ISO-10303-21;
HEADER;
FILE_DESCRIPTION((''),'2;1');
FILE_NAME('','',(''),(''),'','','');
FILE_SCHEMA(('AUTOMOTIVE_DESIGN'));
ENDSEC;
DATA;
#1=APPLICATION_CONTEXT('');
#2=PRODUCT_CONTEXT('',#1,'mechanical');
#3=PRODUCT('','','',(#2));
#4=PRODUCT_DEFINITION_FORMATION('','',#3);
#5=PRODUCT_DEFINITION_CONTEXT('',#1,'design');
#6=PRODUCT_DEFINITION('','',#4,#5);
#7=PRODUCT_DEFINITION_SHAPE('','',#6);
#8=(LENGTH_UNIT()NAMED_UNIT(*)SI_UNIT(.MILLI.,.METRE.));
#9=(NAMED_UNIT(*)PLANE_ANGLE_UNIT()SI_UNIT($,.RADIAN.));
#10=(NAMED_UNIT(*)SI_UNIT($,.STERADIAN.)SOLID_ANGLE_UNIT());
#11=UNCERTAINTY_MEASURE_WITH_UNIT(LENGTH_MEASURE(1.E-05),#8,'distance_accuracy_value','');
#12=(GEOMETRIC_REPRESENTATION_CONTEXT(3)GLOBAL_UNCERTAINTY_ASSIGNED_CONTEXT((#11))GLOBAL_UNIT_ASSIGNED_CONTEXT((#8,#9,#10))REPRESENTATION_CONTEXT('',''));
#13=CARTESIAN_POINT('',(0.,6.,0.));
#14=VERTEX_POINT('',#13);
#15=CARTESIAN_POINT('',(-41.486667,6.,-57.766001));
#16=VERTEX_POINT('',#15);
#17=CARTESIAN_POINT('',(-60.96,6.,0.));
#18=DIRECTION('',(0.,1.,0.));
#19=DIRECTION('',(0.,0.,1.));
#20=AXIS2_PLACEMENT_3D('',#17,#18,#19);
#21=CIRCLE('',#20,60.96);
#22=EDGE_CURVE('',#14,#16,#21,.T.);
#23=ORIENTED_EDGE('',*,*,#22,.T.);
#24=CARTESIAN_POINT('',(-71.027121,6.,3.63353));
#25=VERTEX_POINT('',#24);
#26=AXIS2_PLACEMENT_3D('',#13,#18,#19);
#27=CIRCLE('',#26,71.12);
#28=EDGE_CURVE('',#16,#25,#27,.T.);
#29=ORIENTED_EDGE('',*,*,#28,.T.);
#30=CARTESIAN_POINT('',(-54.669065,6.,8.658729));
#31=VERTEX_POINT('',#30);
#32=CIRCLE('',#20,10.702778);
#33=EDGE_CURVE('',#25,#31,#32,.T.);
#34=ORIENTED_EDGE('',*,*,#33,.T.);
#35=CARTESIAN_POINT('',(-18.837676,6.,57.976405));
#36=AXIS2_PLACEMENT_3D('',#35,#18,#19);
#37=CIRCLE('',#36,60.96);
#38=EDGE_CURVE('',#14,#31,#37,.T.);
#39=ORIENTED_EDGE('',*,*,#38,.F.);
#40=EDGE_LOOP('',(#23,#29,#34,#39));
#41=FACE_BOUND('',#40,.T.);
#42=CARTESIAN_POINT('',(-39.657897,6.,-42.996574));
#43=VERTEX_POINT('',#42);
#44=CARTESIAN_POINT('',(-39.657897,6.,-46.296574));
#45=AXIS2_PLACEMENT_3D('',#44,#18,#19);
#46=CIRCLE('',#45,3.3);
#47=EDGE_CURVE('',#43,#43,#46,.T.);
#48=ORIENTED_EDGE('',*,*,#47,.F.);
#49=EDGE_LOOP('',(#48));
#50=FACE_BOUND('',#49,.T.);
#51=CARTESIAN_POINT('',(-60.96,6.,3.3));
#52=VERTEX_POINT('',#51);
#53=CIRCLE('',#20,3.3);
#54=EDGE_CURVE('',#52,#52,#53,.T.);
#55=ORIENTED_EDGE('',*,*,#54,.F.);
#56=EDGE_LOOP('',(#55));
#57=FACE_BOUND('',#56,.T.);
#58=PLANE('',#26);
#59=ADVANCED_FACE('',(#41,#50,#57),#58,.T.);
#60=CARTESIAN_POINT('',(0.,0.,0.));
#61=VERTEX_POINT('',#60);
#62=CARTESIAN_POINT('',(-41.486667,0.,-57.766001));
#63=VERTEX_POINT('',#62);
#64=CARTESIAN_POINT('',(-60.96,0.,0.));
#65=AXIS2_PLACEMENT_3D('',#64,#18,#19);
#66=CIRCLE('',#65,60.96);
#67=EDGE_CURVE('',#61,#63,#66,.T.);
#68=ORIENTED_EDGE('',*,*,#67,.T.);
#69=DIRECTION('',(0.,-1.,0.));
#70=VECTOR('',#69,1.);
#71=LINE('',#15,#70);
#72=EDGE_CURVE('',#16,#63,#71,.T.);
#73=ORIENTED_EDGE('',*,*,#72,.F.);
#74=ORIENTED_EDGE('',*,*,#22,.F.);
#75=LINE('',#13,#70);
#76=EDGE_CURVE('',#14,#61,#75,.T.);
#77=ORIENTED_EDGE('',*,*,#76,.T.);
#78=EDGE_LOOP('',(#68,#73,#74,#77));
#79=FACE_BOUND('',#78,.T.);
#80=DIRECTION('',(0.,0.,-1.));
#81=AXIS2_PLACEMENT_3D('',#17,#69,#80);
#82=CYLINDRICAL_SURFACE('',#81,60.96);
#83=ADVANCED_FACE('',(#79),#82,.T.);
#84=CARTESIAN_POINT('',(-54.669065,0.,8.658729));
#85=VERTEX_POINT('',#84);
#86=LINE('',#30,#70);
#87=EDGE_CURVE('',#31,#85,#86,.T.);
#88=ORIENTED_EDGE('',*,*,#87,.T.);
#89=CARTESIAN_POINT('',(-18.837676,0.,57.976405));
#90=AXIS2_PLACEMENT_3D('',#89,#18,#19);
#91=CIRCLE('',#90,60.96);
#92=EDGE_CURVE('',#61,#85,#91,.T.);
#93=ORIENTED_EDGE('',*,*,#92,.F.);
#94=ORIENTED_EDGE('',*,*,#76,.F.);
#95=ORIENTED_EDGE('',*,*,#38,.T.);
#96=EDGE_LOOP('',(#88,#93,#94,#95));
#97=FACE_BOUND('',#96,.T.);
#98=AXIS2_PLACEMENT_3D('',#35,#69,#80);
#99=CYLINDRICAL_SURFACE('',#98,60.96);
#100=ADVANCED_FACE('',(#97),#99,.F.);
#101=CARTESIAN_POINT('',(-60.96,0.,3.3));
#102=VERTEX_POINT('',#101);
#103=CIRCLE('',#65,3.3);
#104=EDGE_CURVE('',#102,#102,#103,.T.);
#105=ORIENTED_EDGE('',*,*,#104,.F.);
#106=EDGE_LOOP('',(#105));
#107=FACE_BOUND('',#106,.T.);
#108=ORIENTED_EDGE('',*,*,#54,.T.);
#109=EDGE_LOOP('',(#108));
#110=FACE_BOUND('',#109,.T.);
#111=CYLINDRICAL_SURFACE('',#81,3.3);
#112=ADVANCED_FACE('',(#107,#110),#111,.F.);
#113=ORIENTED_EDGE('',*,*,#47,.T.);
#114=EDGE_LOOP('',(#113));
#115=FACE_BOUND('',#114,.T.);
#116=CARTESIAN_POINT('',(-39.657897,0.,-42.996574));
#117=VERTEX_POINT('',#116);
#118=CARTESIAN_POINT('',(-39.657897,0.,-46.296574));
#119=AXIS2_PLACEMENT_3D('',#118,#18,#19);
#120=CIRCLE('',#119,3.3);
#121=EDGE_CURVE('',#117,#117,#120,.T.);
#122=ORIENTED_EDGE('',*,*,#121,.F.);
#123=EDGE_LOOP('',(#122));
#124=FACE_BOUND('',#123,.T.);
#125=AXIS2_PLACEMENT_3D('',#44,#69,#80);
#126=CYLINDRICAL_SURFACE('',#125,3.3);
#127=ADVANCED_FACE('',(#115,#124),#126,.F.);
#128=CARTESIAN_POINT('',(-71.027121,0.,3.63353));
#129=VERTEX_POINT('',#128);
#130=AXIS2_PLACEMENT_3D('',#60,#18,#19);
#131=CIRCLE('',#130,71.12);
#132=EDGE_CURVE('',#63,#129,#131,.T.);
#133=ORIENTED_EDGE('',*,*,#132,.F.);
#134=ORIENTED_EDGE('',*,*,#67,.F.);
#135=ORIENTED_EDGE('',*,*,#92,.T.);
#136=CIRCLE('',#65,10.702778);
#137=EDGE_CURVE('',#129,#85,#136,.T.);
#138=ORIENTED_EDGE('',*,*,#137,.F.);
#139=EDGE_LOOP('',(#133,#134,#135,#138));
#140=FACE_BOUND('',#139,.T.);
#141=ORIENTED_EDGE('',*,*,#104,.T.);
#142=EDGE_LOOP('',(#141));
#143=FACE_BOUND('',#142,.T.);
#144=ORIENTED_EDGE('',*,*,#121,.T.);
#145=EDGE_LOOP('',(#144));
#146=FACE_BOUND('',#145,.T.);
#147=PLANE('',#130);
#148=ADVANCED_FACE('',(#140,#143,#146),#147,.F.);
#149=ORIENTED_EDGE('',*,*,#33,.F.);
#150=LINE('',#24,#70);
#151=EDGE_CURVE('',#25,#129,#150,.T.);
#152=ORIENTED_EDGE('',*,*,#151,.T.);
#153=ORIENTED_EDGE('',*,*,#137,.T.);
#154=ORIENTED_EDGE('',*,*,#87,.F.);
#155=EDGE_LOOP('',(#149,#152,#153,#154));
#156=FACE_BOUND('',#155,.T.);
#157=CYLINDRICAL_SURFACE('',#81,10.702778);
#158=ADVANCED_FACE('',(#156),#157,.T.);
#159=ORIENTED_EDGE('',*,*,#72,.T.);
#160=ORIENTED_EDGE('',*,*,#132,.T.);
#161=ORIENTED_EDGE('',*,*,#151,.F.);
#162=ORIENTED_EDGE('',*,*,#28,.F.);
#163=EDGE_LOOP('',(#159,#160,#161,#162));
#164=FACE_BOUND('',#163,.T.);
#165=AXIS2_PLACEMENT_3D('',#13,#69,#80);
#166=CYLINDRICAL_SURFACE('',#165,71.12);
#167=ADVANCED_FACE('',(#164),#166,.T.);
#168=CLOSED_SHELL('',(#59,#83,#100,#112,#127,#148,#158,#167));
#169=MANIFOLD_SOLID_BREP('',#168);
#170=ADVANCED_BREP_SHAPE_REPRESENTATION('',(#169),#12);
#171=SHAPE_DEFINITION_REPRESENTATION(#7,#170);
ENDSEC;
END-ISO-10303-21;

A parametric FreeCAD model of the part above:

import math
import FreeCAD as App
import Part
import Sketcher

V = App.Vector

doc = App.newDocument("Part")
body = doc.addObject("PartDesign::Body", "Body")

# Sketch on XZ plane
sketch1 = body.newObject("Sketcher::SketchObject", "Sketch")
sketch1.AttachmentSupport = (doc.getObject("XZ_Plane"), [""])
sketch1.MapMode = "FlatFace"
sketch1.addGeometry(Part.ArcOfCircle(Part.Circle(V(-60.96, 0, 0), V(0, 0, 1), 60.96), math.radians(-71.370669), math.radians(0)), False)
sketch1.addGeometry(Part.ArcOfCircle(Part.Circle(V(0, 0, 0), V(0, 0, 1), 71.12), math.radians(177.071476), math.radians(234.314665)), False)
sketch1.addGeometry(Part.ArcOfCircle(Part.Circle(V(-60.96, 0, 0), V(0, 0, 1), 10.702778), math.radians(54), math.radians(160.153946)), False)
sketch1.addGeometry(Part.ArcOfCircle(Part.Circle(V(-18.837676, 57.976405, 0), V(0, 0, 1), 60.96), math.radians(-126), math.radians(-72)), False)
sketch1.addGeometry(Part.Circle(V(-60.96, 0, 0), V(0, 0, 1), 3.3), False)
sketch1.addGeometry(Part.Circle(V(-39.657897, -46.296574, 0), V(0, 0, 1), 3.3), False)
sketch1.addConstraint(Sketcher.Constraint("Coincident", 0, 1, 1, 2))
sketch1.addConstraint(Sketcher.Constraint("Coincident", 1, 1, 2, 2))
sketch1.addConstraint(Sketcher.Constraint("Tangent", 2, 1, 3, 1))
sketch1.addConstraint(Sketcher.Constraint("Coincident", 3, 2, 0, 2))
sketch1.addConstraint(Sketcher.Constraint("Coincident", 1, 3, -1, 1))
sketch1.addConstraint(Sketcher.Constraint("Coincident", 3, 2, -1, 1))
sketch1.addConstraint(Sketcher.Constraint("Coincident", 2, 3, 0, 3))
sketch1.addConstraint(Sketcher.Constraint("Coincident", 4, 3, 0, 3))
sketch1.addConstraint(Sketcher.Constraint("Equal", 0, 3))
sketch1.addConstraint(Sketcher.Constraint("Equal", 4, 5))
sketch1.addConstraint(Sketcher.Constraint("PointOnObject", 0, 3, -1))
sketch1.addConstraint(Sketcher.Constraint("Diameter", 4, 6.6))
sketch1.addConstraint(Sketcher.Constraint("Radius", 0, 60.96))
sketch1.addConstraint(Sketcher.Constraint("Radius", 1, 71.12))
sketch1.addConstraint(Sketcher.Constraint("Radius", 2, 10.702778))
sketch1.addConstraint(Sketcher.Constraint("DistanceX", 5, 3, 3, 3, 20.820221))
sketch1.addConstraint(Sketcher.Constraint("DistanceY", 5, 3, 3, 3, 104.27298))
pad1 = body.newObject("PartDesign::Pad", "Pad")
pad1.Profile = sketch1
pad1.Length = 6
pad1.Reversed = True

doc.recompute()
